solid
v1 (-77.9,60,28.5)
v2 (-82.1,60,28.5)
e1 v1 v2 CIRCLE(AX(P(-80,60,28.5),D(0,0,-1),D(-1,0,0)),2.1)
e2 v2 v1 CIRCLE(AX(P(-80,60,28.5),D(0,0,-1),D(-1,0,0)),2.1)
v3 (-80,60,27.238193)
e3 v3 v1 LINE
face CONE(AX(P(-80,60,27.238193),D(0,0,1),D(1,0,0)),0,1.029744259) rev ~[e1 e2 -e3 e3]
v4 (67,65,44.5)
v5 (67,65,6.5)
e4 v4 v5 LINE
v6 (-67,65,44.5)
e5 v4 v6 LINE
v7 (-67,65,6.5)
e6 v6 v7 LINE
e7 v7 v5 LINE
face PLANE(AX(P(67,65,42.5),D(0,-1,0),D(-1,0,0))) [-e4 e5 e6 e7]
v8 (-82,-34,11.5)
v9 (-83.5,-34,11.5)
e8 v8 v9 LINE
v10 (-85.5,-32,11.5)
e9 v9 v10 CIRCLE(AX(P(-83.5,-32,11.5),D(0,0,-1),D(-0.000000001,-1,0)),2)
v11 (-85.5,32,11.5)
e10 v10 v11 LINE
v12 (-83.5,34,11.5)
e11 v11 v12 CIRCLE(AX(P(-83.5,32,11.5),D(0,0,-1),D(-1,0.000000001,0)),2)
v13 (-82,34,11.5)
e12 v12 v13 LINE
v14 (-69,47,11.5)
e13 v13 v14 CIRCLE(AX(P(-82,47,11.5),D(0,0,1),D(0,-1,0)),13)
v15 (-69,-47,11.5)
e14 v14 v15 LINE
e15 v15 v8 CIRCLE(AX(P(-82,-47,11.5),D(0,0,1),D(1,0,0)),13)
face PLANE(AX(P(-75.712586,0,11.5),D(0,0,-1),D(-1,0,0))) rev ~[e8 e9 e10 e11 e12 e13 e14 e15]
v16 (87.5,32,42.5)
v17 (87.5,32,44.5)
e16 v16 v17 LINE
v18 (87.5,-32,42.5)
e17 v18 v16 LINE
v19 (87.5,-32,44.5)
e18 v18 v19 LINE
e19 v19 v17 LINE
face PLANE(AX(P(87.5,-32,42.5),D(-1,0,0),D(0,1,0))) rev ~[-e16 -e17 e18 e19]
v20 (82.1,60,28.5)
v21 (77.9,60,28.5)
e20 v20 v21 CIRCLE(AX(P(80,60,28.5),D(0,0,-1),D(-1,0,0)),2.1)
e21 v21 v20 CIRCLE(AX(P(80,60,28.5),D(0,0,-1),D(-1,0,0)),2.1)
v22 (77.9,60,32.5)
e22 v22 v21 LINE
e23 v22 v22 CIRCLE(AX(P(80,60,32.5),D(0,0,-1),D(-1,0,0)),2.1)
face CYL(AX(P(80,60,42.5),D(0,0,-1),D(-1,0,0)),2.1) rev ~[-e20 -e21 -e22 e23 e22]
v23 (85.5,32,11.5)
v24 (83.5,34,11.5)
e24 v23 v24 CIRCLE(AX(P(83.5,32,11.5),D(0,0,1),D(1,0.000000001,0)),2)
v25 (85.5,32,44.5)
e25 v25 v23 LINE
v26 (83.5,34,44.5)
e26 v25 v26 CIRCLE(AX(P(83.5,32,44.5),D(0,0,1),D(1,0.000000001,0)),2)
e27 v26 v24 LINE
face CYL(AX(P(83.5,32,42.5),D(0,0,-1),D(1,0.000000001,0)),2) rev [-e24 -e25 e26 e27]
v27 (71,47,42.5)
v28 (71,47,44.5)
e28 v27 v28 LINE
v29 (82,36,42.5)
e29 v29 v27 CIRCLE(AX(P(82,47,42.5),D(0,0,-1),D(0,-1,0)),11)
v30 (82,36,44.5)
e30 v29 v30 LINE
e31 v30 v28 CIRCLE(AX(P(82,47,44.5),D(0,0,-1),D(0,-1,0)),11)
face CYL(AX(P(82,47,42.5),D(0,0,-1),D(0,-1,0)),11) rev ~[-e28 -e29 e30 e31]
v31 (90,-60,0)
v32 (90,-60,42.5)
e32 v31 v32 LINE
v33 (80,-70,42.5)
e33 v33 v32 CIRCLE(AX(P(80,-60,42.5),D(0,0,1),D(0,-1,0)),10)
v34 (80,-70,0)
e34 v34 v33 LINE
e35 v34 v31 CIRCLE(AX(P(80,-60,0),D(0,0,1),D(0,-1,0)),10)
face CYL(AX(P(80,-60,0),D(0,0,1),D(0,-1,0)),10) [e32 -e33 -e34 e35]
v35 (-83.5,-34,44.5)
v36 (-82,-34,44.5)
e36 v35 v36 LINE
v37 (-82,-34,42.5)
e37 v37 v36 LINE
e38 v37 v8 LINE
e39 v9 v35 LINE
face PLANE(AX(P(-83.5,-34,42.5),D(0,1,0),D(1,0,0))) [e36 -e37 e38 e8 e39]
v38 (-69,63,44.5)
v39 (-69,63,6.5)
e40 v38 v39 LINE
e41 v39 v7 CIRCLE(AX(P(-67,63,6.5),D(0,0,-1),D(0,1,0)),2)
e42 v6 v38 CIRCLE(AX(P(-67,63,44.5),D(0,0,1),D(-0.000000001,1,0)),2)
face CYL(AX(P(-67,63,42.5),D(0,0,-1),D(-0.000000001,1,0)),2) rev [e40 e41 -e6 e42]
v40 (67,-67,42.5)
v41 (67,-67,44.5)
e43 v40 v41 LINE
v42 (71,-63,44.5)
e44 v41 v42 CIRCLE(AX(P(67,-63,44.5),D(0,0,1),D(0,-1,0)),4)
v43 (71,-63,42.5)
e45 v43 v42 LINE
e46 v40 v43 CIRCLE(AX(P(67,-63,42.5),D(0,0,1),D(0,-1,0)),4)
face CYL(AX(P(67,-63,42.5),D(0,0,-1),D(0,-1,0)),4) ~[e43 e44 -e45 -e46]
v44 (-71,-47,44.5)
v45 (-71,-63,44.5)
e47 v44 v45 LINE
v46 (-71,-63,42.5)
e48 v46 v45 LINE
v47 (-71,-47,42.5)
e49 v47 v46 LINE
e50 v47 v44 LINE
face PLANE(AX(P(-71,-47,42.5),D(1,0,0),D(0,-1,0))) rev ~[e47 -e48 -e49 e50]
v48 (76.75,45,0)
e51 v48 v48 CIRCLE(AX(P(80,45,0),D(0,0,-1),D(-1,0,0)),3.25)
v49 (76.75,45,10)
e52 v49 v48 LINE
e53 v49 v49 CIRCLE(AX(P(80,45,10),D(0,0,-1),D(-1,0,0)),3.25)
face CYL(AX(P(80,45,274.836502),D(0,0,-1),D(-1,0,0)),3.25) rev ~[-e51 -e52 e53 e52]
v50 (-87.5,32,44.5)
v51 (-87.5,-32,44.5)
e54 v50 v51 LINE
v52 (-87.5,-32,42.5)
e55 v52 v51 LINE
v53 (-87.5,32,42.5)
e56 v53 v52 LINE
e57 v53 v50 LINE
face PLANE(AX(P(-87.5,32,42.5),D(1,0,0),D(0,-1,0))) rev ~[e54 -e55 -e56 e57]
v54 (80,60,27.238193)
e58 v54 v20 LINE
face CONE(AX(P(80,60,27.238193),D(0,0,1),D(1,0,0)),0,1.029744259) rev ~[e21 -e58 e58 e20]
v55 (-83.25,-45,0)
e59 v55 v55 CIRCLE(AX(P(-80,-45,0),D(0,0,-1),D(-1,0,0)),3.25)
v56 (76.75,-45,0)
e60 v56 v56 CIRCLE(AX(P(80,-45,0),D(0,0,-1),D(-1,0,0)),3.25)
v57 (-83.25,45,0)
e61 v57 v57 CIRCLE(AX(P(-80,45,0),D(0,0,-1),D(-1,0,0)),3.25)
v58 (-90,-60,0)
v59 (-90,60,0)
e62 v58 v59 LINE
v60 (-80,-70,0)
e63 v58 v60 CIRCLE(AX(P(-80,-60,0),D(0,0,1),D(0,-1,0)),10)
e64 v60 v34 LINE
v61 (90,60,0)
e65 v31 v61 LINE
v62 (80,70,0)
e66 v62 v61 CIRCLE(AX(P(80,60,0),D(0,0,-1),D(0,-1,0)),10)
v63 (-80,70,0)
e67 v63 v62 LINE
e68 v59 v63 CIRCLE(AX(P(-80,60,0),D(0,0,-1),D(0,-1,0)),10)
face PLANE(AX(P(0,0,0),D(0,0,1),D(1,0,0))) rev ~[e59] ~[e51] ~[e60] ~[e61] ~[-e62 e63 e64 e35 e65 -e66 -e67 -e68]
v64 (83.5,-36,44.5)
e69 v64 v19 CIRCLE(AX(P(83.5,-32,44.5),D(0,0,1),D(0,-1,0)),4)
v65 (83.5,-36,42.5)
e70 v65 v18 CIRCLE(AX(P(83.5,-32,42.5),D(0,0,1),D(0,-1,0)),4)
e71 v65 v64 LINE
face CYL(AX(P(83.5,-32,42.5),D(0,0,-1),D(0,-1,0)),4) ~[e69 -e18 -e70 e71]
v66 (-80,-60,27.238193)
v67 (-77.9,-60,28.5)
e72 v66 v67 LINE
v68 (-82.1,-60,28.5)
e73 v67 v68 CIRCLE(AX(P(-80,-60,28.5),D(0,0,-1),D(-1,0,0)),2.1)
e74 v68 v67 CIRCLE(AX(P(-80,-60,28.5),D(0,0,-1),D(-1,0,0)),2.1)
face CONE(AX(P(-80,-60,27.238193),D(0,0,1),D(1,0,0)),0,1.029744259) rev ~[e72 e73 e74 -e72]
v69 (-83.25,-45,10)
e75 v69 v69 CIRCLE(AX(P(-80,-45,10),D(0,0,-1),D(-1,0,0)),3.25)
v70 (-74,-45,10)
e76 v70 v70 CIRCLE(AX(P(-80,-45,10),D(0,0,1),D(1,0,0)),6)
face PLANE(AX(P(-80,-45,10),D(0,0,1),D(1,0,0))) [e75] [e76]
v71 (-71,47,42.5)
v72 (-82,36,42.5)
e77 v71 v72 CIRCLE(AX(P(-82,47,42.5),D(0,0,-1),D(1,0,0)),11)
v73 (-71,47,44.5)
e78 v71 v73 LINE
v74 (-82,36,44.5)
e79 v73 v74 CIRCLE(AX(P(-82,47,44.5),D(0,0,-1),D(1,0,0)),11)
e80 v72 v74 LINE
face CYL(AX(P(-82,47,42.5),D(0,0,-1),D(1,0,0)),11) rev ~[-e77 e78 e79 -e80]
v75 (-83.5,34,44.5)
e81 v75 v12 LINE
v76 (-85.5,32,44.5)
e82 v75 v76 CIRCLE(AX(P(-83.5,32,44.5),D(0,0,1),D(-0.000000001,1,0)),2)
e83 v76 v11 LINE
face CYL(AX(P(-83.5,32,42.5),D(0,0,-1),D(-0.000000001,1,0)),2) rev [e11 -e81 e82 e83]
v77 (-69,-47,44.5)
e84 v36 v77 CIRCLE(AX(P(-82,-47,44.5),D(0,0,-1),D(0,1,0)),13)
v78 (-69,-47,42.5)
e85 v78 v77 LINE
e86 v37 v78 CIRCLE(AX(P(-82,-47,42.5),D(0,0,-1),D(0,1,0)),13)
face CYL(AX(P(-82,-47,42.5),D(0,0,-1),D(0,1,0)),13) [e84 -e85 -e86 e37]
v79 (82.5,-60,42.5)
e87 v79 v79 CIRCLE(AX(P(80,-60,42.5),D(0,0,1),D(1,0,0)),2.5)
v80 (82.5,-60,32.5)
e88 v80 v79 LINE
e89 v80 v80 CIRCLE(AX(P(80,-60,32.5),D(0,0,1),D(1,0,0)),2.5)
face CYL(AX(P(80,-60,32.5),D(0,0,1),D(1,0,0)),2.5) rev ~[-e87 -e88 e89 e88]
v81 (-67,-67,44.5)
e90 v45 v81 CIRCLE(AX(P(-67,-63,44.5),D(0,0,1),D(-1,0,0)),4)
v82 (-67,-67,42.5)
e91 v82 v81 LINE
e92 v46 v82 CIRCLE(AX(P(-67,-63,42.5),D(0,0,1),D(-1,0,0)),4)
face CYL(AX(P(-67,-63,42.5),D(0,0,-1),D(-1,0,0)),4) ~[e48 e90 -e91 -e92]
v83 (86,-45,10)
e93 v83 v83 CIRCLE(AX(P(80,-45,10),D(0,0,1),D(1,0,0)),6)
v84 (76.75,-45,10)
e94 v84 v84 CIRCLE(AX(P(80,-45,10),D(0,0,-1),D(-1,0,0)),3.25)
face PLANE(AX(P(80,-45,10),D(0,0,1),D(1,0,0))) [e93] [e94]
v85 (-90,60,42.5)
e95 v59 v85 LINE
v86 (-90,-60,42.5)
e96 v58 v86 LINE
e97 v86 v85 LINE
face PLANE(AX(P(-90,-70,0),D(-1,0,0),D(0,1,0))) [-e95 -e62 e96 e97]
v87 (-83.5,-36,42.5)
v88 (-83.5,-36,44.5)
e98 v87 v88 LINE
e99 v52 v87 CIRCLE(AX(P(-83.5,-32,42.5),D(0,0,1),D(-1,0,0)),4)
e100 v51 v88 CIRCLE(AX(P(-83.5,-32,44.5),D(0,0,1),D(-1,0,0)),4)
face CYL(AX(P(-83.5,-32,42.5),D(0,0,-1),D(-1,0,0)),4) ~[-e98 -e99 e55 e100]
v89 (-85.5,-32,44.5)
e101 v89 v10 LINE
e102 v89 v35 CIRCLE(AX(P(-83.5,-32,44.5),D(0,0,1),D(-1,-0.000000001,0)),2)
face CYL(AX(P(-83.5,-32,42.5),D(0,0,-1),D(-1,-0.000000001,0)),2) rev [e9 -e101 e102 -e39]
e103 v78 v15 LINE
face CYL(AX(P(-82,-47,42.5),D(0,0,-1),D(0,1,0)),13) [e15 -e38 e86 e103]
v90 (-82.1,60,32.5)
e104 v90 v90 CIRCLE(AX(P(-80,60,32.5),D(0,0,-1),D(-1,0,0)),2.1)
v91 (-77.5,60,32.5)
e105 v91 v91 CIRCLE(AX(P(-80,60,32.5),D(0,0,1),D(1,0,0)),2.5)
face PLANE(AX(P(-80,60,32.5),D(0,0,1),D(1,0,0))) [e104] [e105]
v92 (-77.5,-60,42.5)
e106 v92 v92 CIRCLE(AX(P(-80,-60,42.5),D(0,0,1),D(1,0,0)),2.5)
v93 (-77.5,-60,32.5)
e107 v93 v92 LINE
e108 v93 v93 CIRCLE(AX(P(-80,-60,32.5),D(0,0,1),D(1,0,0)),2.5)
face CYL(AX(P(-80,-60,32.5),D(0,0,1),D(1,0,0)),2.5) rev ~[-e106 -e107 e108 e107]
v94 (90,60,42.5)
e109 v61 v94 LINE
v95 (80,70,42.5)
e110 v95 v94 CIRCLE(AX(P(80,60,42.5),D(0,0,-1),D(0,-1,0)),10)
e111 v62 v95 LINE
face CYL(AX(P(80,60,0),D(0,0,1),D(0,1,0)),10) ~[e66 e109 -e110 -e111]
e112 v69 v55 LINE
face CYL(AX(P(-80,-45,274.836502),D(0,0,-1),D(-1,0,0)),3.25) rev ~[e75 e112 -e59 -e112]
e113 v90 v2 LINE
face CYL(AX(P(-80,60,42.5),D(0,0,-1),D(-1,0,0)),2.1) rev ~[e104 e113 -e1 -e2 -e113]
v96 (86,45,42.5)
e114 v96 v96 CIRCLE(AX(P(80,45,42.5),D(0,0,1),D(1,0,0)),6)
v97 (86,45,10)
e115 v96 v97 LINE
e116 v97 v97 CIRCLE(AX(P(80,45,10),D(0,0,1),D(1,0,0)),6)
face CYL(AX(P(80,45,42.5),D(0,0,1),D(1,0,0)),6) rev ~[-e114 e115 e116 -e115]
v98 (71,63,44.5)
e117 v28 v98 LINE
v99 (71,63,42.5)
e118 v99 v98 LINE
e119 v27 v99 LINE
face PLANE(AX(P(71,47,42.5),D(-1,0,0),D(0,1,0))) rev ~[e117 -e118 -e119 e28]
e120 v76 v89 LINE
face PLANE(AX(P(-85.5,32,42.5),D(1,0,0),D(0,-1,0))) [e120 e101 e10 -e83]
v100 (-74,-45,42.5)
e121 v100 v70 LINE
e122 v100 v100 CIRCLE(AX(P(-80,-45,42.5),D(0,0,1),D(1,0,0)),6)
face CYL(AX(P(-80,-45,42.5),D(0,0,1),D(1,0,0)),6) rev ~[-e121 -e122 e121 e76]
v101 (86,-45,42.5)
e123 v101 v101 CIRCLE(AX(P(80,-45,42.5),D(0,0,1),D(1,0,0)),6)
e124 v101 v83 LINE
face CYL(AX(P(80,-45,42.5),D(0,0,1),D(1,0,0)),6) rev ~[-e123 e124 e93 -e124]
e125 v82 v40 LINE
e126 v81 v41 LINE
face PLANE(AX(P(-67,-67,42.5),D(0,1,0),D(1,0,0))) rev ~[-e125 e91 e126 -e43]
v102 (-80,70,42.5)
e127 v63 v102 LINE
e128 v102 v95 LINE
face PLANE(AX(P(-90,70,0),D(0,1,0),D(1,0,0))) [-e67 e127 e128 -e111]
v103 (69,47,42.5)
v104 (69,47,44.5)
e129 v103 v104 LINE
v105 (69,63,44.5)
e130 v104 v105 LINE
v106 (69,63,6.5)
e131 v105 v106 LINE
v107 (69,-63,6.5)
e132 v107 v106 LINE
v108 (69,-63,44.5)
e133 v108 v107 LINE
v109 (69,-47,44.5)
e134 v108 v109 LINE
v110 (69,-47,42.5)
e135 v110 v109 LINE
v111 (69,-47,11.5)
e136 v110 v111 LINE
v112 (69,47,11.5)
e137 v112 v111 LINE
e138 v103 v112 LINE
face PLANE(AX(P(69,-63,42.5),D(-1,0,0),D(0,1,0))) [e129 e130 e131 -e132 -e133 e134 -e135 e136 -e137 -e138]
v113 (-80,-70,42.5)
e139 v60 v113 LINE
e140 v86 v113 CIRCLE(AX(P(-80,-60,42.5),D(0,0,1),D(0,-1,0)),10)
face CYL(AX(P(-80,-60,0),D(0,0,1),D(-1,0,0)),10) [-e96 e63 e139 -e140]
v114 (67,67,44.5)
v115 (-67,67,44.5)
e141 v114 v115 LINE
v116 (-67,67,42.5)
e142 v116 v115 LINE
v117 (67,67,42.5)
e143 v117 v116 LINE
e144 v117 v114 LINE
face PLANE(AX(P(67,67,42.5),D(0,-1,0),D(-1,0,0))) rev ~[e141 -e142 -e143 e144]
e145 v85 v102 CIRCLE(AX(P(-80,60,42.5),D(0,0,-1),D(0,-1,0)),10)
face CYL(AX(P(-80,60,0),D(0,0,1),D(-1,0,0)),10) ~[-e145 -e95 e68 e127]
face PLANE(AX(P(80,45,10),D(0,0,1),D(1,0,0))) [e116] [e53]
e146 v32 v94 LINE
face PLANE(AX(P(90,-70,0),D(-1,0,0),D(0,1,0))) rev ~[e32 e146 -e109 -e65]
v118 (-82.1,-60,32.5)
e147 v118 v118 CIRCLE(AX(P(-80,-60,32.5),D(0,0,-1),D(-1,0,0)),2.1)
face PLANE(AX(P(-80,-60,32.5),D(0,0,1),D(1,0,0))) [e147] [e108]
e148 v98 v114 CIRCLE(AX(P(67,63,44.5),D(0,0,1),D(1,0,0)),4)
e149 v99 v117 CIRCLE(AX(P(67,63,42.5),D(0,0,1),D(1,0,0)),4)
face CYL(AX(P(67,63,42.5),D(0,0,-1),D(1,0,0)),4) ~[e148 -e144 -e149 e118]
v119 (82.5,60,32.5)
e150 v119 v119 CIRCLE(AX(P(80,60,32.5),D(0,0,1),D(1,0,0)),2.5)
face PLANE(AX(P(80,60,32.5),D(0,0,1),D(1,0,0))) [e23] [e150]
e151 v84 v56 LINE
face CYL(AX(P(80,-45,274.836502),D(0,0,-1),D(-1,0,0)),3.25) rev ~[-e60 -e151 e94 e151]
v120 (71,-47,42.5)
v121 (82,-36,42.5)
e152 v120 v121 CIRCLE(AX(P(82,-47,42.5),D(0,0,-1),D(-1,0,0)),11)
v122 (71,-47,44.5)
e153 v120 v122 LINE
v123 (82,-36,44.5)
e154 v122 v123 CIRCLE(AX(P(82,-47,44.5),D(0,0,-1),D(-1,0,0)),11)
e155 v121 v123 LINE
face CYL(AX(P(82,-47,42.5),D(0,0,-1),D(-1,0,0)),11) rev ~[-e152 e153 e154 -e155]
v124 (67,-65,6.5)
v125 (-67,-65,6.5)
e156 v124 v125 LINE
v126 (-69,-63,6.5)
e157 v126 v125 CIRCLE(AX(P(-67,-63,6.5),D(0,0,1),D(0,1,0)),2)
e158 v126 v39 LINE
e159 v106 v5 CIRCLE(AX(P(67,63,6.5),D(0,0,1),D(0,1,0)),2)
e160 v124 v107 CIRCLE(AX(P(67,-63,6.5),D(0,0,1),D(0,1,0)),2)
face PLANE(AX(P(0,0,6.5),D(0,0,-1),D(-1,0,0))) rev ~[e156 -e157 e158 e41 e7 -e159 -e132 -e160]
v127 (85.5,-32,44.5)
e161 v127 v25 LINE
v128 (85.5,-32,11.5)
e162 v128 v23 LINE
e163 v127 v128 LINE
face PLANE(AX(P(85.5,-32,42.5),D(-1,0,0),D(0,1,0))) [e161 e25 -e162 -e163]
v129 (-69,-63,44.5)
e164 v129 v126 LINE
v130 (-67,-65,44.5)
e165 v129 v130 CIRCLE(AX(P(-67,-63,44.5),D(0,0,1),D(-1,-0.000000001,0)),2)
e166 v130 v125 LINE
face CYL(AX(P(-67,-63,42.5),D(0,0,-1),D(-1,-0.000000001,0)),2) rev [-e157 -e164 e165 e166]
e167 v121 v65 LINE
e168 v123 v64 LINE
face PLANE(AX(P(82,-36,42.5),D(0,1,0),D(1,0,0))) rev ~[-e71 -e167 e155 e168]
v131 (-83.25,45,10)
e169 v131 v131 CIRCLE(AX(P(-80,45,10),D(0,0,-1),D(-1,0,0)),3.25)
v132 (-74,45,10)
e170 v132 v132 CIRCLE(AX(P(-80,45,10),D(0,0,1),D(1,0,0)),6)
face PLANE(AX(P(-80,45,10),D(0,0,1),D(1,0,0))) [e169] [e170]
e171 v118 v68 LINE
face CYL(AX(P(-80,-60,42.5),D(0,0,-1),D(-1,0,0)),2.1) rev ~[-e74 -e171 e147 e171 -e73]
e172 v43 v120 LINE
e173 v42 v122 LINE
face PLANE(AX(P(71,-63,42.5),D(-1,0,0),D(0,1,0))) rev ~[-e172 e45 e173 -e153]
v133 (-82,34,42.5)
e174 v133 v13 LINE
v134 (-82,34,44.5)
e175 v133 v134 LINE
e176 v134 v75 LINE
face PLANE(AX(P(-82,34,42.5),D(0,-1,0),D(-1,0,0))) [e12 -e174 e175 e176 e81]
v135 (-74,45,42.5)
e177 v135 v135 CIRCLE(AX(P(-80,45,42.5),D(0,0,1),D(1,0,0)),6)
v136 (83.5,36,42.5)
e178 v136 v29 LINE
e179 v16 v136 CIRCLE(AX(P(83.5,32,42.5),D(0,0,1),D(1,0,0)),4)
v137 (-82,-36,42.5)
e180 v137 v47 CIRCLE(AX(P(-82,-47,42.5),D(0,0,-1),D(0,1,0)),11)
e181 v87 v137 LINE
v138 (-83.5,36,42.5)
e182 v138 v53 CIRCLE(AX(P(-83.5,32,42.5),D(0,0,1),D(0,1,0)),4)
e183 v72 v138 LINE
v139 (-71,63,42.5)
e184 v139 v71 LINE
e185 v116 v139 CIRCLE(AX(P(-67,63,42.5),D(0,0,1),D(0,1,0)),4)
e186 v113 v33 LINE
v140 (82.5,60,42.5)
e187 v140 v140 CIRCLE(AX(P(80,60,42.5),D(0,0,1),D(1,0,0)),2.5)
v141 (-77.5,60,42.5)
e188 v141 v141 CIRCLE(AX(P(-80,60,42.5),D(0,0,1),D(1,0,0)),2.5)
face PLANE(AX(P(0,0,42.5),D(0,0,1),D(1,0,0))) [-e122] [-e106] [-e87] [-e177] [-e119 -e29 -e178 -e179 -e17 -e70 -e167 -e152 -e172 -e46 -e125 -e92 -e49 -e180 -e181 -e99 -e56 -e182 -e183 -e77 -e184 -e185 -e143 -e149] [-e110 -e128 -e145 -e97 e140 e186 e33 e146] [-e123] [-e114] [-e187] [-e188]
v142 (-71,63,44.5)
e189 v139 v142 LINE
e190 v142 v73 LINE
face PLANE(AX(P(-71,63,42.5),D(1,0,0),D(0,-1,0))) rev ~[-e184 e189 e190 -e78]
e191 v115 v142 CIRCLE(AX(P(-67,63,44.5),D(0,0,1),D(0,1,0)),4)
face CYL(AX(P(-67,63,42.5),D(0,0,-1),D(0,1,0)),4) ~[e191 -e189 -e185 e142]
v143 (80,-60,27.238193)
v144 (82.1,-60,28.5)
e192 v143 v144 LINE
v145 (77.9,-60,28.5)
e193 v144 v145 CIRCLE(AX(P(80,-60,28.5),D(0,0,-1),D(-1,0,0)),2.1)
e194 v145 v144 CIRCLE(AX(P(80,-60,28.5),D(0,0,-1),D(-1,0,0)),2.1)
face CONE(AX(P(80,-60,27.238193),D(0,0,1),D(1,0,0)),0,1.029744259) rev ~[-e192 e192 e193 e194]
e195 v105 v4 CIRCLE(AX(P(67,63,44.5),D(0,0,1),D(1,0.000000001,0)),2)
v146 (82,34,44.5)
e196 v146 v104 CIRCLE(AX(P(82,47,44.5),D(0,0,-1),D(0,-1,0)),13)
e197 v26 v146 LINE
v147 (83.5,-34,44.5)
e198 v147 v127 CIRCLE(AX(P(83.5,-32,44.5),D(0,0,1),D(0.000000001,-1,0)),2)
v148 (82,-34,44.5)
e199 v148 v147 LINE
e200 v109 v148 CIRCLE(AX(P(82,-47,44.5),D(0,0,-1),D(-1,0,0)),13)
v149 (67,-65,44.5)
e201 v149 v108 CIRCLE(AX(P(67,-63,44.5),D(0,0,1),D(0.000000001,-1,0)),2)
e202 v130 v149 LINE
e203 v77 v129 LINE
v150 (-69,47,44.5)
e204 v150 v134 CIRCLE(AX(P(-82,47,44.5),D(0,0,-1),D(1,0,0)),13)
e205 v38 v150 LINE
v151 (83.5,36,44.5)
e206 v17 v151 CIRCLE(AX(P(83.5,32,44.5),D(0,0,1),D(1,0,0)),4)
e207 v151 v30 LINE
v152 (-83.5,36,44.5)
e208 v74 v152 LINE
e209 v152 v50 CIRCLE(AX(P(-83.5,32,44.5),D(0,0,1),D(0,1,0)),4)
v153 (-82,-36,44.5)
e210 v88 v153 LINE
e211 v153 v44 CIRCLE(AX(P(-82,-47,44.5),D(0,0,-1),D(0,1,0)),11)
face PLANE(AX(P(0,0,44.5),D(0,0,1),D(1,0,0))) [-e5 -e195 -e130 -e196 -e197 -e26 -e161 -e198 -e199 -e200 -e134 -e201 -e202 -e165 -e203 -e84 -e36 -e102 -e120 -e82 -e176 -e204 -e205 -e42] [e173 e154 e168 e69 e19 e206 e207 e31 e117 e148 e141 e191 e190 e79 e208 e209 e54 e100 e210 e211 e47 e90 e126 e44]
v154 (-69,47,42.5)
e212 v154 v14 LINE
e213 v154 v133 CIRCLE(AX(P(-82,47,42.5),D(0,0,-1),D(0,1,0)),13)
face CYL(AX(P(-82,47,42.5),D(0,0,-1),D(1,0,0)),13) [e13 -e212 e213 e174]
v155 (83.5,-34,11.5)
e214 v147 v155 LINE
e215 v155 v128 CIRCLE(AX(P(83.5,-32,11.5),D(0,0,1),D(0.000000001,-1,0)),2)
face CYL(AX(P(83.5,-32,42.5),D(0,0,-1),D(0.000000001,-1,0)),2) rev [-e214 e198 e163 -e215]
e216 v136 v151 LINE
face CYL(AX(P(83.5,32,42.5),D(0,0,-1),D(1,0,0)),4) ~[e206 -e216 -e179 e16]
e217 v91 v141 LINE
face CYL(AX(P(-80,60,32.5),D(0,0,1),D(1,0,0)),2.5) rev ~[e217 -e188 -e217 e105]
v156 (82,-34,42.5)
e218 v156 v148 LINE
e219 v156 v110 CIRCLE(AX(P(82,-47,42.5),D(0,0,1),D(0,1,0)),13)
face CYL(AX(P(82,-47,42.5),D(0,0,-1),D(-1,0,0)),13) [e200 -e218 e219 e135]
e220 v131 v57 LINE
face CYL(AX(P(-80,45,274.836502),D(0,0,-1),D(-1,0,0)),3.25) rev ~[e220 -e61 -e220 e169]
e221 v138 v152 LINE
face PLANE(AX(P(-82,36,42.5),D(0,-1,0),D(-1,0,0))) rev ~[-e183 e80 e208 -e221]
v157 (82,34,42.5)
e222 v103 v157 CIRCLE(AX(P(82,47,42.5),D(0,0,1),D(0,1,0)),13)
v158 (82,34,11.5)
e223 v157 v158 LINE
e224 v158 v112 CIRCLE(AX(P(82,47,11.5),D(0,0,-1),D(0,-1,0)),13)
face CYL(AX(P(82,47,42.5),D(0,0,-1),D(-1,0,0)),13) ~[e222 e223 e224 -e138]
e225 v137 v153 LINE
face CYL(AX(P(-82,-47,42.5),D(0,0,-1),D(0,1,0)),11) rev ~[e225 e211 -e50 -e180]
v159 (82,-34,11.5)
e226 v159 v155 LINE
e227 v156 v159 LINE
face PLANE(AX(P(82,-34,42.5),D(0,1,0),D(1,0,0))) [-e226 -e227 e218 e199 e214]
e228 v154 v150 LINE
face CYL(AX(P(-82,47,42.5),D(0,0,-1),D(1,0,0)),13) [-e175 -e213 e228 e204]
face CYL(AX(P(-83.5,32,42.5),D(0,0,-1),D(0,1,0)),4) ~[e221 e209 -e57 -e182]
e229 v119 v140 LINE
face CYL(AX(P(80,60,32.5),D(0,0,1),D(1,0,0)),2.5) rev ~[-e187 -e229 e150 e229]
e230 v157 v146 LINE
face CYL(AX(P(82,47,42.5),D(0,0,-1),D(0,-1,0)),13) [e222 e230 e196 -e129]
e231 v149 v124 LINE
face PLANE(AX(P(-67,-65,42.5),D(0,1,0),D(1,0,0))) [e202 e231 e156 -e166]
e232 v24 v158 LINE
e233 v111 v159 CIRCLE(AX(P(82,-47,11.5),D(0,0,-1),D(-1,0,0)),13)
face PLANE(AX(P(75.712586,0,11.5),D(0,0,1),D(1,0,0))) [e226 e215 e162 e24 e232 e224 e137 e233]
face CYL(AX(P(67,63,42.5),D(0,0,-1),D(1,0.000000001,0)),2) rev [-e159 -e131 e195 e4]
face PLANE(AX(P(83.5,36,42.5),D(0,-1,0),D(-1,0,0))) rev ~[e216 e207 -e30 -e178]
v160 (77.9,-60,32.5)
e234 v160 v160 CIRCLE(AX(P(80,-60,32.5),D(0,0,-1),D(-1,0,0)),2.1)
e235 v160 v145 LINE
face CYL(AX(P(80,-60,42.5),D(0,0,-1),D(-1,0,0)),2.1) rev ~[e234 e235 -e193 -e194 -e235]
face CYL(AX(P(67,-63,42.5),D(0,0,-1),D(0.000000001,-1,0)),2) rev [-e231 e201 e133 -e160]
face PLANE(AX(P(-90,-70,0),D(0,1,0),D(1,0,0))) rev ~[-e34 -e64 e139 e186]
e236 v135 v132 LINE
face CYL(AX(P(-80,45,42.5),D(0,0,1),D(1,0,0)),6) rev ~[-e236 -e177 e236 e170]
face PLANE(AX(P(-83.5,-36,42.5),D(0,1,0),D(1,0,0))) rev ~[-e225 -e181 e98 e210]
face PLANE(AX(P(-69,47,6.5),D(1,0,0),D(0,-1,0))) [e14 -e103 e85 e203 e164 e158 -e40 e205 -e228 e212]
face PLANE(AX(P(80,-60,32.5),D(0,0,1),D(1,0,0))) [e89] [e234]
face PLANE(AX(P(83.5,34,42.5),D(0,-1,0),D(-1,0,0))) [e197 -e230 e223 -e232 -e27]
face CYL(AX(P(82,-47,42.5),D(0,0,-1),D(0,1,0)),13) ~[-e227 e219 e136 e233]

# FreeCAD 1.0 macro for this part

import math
import FreeCAD as App
import Part
import Sketcher


def edges_at(feature, points):
    """Names of the edges that pass closest to the given points."""
    edges = feature.Shape.Edges
    near = lambda p: min(range(len(edges)), key=lambda i: edges[i].distToShape(Part.Vertex(*p))[0])
    return sorted({f"Edge{near(p) + 1}" for p in points})

doc = App.newDocument("Part")
body = doc.addObject("PartDesign::Body", "Body")

sketch1 = body.newObject("Sketcher::SketchObject", "Sketch")
sketch1.AttachmentSupport = (doc.getObject("XY_Plane"), [""])
sketch1.MapMode = "FlatFace"
sketch1.addGeometry(Part.LineSegment(App.Vector(-90, 70, 0), App.Vector(-90, -70, 0)), False)
sketch1.addGeometry(Part.LineSegment(App.Vector(-90, -70, 0), App.Vector(90, -70, 0)), False)
sketch1.addGeometry(Part.LineSegment(App.Vector(90, -70, 0), App.Vector(90, 70, 0)), False)
sketch1.addGeometry(Part.LineSegment(App.Vector(90, 70, 0), App.Vector(-90, 70, 0)), False)
sketch1.addConstraint(Sketcher.Constraint("Coincident", 0, 2, 1, 1))
sketch1.addConstraint(Sketcher.Constraint("Coincident", 1, 2, 2, 1))
sketch1.addConstraint(Sketcher.Constraint("Coincident", 2, 2, 3, 1))
sketch1.addConstraint(Sketcher.Constraint("Coincident", 3, 2, 0, 1))
sketch1.addConstraint(Sketcher.Constraint("Vertical", 0))
sketch1.addConstraint(Sketcher.Constraint("Horizontal", 1))
sketch1.addConstraint(Sketcher.Constraint("Vertical", 2))
sketch1.addConstraint(Sketcher.Constraint("Horizontal", 3))
sketch1.addConstraint(Sketcher.Constraint("Symmetric", 0, 2, 2, 2, -1, 1))
sketch1.addConstraint(Sketcher.Constraint("DistanceX", 1, 1, 1, 2, 180.0))
sketch1.addConstraint(Sketcher.Constraint("DistanceY", 0, 2, 0, 1, 140.0))
pad1 = body.newObject("PartDesign::Pad", "Pad")
pad1.Profile = sketch1
pad1.Length = 42.5

sketch2 = body.newObject("Sketcher::SketchObject", "Sketch001")
sketch2.AttachmentSupport = (doc.getObject("XY_Plane"), [""])
sketch2.MapMode = "FlatFace"
sketch2.AttachmentOffset = App.Placement(App.Vector(0, 0, 42.5), App.Rotation())
sketch2.addGeometry(Part.LineSegment(App.Vector(69, 65, 0), App.Vector(-69, 65, 0)), False)
sketch2.addGeometry(Part.LineSegment(App.Vector(-69, 65, 0), App.Vector(-69, 34, 0)), False)
sketch2.addGeometry(Part.LineSegment(App.Vector(-69, 34, 0), App.Vector(-86, 34, 0)), False)
sketch2.addGeometry(Part.LineSegment(App.Vector(-86, 34, 0), App.Vector(-86, -34, 0)), False)
sketch2.addGeometry(Part.LineSegment(App.Vector(-86, -34, 0), App.Vector(-69, -34, 0)), False)
sketch2.addGeometry(Part.LineSegment(App.Vector(-69, -34, 0), App.Vector(-69, -65, 0)), False)
sketch2.addGeometry(Part.LineSegment(App.Vector(-69, -65, 0), App.Vector(69, -65, 0)), False)
sketch2.addGeometry(Part.LineSegment(App.Vector(69, -65, 0), App.Vector(69, -34, 0)), False)
sketch2.addGeometry(Part.LineSegment(App.Vector(69, -34, 0), App.Vector(86, -34, 0)), False)
sketch2.addGeometry(Part.LineSegment(App.Vector(86, -34, 0), App.Vector(86, 34, 0)), False)
sketch2.addGeometry(Part.LineSegment(App.Vector(86, 34, 0), App.Vector(69, 34, 0)), False)
sketch2.addGeometry(Part.LineSegment(App.Vector(69, 34, 0), App.Vector(69, 65, 0)), False)
sketch2.addConstraint(Sketcher.Constraint("Coincident", 0, 2, 1, 1))
sketch2.addConstraint(Sketcher.Constraint("Coincident", 1, 2, 2, 1))
sketch2.addConstraint(Sketcher.Constraint("Coincident", 2, 2, 3, 1))
sketch2.addConstraint(Sketcher.Constraint("Coincident", 3, 2, 4, 1))
sketch2.addConstraint(Sketcher.Constraint("Coincident", 4, 2, 5, 1))
sketch2.addConstraint(Sketcher.Constraint("Coincident", 5, 2, 6, 1))
sketch2.addConstraint(Sketcher.Constraint("Coincident", 6, 2, 7, 1))
sketch2.addConstraint(Sketcher.Constraint("Coincident", 7, 2, 8, 1))
sketch2.addConstraint(Sketcher.Constraint("Coincident", 8, 2, 9, 1))
sketch2.addConstraint(Sketcher.Constraint("Coincident", 9, 2, 10, 1))
sketch2.addConstraint(Sketcher.Constraint("Coincident", 10, 2, 11, 1))
sketch2.addConstraint(Sketcher.Constraint("Coincident", 11, 2, 0, 1))
sketch2.addConstraint(Sketcher.Constraint("Horizontal", 0))
sketch2.addConstraint(Sketcher.Constraint("Vertical", 1))
sketch2.addConstraint(Sketcher.Constraint("Horizontal", 2))
sketch2.addConstraint(Sketcher.Constraint("Vertical", 3))
sketch2.addConstraint(Sketcher.Constraint("Horizontal", 4))
sketch2.addConstraint(Sketcher.Constraint("Vertical", 5))
sketch2.addConstraint(Sketcher.Constraint("Horizontal", 6))
sketch2.addConstraint(Sketcher.Constraint("Vertical", 7))
sketch2.addConstraint(Sketcher.Constraint("Horizontal", 8))
sketch2.addConstraint(Sketcher.Constraint("Vertical", 9))
sketch2.addConstraint(Sketcher.Constraint("Horizontal", 10))
sketch2.addConstraint(Sketcher.Constraint("Vertical", 11))
sketch2.addConstraint(Sketcher.Constraint("Symmetric", 0, 2, 6, 2, -1, 1))
sketch2.addConstraint(Sketcher.Constraint("Symmetric", 2, 2, 8, 2, -1, 1))
sketch2.addConstraint(Sketcher.Constraint("Symmetric", 4, 2, 10, 2, -1, 1))
sketch2.addConstraint(Sketcher.Constraint("Symmetric", 4, 2, 7, 2, -2))
sketch2.addConstraint(Sketcher.Constraint("DistanceX", 0, 2, 0, 1, 138.0))
sketch2.addConstraint(Sketcher.Constraint("DistanceY", 1, 2, 1, 1, 31.0))
sketch2.addConstraint(Sketcher.Constraint("DistanceY", 3, 2, 3, 1, 68.0))
sketch2.addConstraint(Sketcher.Constraint("DistanceX", 2, 2, 2, 1, 16.5))
pocket1 = body.newObject("PartDesign::Pocket", "Pocket")
pocket1.Profile = sketch2
pocket1.Length = 36
doc.recompute()

fillet = body.newObject("PartDesign::Fillet", "Fillet")
fillet.Base = (pocket1, edges_at(pocket1, [
    (-69, 65, 24.5),
    (69, 65, 24.5),
    (85.5, 34, 24.5),
    (85.5, -34, 24.5),
    (69, -65, 24.5),
    (-69, -65, 24.5),
    (-85.5, -34, 24.5),
    (-85.5, 34, 24.5),
]))
fillet.Radius = 2
doc.recompute()

fillet2 = body.newObject("PartDesign::Fillet", "Fillet001")
fillet2.Base = (fillet, edges_at(fillet, [
    (-69, 34, 24.5),
    (69, 34, 24.5),
    (69, -34, 24.5),
    (-69, -34, 24.5),
]))
fillet2.Radius = 13
doc.recompute()

fillet3 = body.newObject("PartDesign::Fillet", "Fillet002")
fillet3.Base = (fillet2, edges_at(fillet2, [
    (-90, 70, 21.25),
    (90, 70, 21.25),
    (90, -70, 21.25),
    (-90, -70, 21.25),
]))
fillet3.Radius = 10

sketch3 = body.newObject("Sketcher::SketchObject", "Sketch002")
sketch3.AttachmentSupport = (doc.getObject("XY_Plane"), [""])
sketch3.MapMode = "FlatFace"
sketch3.AttachmentOffset = App.Placement(App.Vector(0, 0, 42.5), App.Rotation())
sketch3.addGeometry(Part.LineSegment(App.Vector(-71, 63, 0), App.Vector(-71, 47, 0)), False)
sketch3.addGeometry(Part.ArcOfCircle(Part.Circle(App.Vector(-82, 47, 0), App.Vector(0, 0, 1), 11), math.radians(-90), math.radians(0)), False)
sketch3.addGeometry(Part.LineSegment(App.Vector(-82, 36, 0), App.Vector(-83.5, 36, 0)), False)
sketch3.addGeometry(Part.ArcOfCircle(Part.Circle(App.Vector(-83.5, 32, 0), App.Vector(0, 0, 1), 4), math.radians(90), math.radians(180)), False)
sketch3.addGeometry(Part.LineSegment(App.Vector(-87.5, 32, 0), App.Vector(-87.5, -32, 0)), False)
sketch3.addGeometry(Part.ArcOfCircle(Part.Circle(App.Vector(-83.5, -32, 0), App.Vector(0, 0, 1), 4), math.radians(180), math.radians(270)), False)
sketch3.addGeometry(Part.LineSegment(App.Vector(-83.5, -36, 0), App.Vector(-82, -36, 0)), False)
sketch3.addGeometry(Part.ArcOfCircle(Part.Circle(App.Vector(-82, -47, 0), App.Vector(0, 0, 1), 11), math.radians(0), math.radians(90)), False)
sketch3.addGeometry(Part.LineSegment(App.Vector(-71, -47, 0), App.Vector(-71, -63, 0)), False)
sketch3.addGeometry(Part.ArcOfCircle(Part.Circle(App.Vector(-67, -63, 0), App.Vector(0, 0, 1), 4), math.radians(180), math.radians(270)), False)
sketch3.addGeometry(Part.LineSegment(App.Vector(-67, -67, 0), App.Vector(67, -67, 0)), False)
sketch3.addGeometry(Part.ArcOfCircle(Part.Circle(App.Vector(67, -63, 0), App.Vector(0, 0, 1), 4), math.radians(-90), math.radians(0)), False)
sketch3.addGeometry(Part.LineSegment(App.Vector(71, -63, 0), App.Vector(71, -47, 0)), False)
sketch3.addGeometry(Part.ArcOfCircle(Part.Circle(App.Vector(82, -47, 0), App.Vector(0, 0, 1), 11), math.radians(90), math.radians(180)), False)
sketch3.addGeometry(Part.LineSegment(App.Vector(82, -36, 0), App.Vector(83.5, -36, 0)), False)
sketch3.addGeometry(Part.ArcOfCircle(Part.Circle(App.Vector(83.5, -32, 0), App.Vector(0, 0, 1), 4), math.radians(-90), math.radians(0)), False)
sketch3.addGeometry(Part.LineSegment(App.Vector(87.5, -32, 0), App.Vector(87.5, 32, 0)), False)
sketch3.addGeometry(Part.ArcOfCircle(Part.Circle(App.Vector(83.5, 32, 0), App.Vector(0, 0, 1), 4), math.radians(0), math.radians(90)), False)
sketch3.addGeometry(Part.LineSegment(App.Vector(83.5, 36, 0), App.Vector(82, 36, 0)), False)
sketch3.addGeometry(Part.ArcOfCircle(Part.Circle(App.Vector(82, 47, 0), App.Vector(0, 0, 1), 11), math.radians(180), math.radians(270)), False)
sketch3.addGeometry(Part.LineSegment(App.Vector(71, 47, 0), App.Vector(71, 63, 0)), False)
sketch3.addGeometry(Part.ArcOfCircle(Part.Circle(App.Vector(67, 63, 0), App.Vector(0, 0, 1), 4), math.radians(0), math.radians(90)), False)
sketch3.addGeometry(Part.LineSegment(App.Vector(67, 67, 0), App.Vector(-67, 67, 0)), False)
sketch3.addGeometry(Part.ArcOfCircle(Part.Circle(App.Vector(-67, 63, 0), App.Vector(0, 0, 1), 4), math.radians(90), math.radians(180)), False)
sketch3.addGeometry(Part.LineSegment(App.Vector(-82, -34, 0), App.Vector(-83.5, -34, 0)), False)
sketch3.addGeometry(Part.ArcOfCircle(Part.Circle(App.Vector(-83.5, -32, 0), App.Vector(0, 0, 1), 2), math.radians(-180), math.radians(-90)), False)
sketch3.addGeometry(Part.LineSegment(App.Vector(-85.5, -32, 0), App.Vector(-85.5, 32, 0)), False)
sketch3.addGeometry(Part.ArcOfCircle(Part.Circle(App.Vector(-83.5, 32, 0), App.Vector(0, 0, 1), 2), math.radians(90), math.radians(180)), False)
sketch3.addGeometry(Part.LineSegment(App.Vector(-83.5, 34, 0), App.Vector(-82, 34, 0)), False)
sketch3.addGeometry(Part.ArcOfCircle(Part.Circle(App.Vector(-82, 47, 0), App.Vector(0, 0, 1), 13), math.radians(-90), math.radians(0)), False)
sketch3.addGeometry(Part.LineSegment(App.Vector(-69, 47, 0), App.Vector(-69, 63, 0)), False)
sketch3.addGeometry(Part.ArcOfCircle(Part.Circle(App.Vector(-67, 63, 0), App.Vector(0, 0, 1), 2), math.radians(90), math.radians(180)), False)
sketch3.addGeometry(Part.LineSegment(App.Vector(-67, 65, 0), App.Vector(67, 65, 0)), False)
sketch3.addGeometry(Part.ArcOfCircle(Part.Circle(App.Vector(67, 63, 0), App.Vector(0, 0, 1), 2), math.radians(0), math.radians(90)), False)
sketch3.addGeometry(Part.LineSegment(App.Vector(69, 63, 0), App.Vector(69, 47, 0)), False)
sketch3.addGeometry(Part.ArcOfCircle(Part.Circle(App.Vector(82, 47, 0), App.Vector(0, 0, 1), 13), math.radians(-180), math.radians(-90)), False)
sketch3.addGeometry(Part.LineSegment(App.Vector(82, 34, 0), App.Vector(83.5, 34, 0)), False)
sketch3.addGeometry(Part.ArcOfCircle(Part.Circle(App.Vector(83.5, 32, 0), App.Vector(0, 0, 1), 2), math.radians(0), math.radians(90)), False)
sketch3.addGeometry(Part.LineSegment(App.Vector(85.5, 32, 0), App.Vector(85.5, -32, 0)), False)
sketch3.addGeometry(Part.ArcOfCircle(Part.Circle(App.Vector(83.5, -32, 0), App.Vector(0, 0, 1), 2), math.radians(-90), math.radians(0)), False)
sketch3.addGeometry(Part.LineSegment(App.Vector(83.5, -34, 0), App.Vector(82, -34, 0)), False)
sketch3.addGeometry(Part.ArcOfCircle(Part.Circle(App.Vector(82, -47, 0), App.Vector(0, 0, 1), 13), math.radians(90), math.radians(180)), False)
sketch3.addGeometry(Part.LineSegment(App.Vector(69, -47, 0), App.Vector(69, -63, 0)), False)
sketch3.addGeometry(Part.ArcOfCircle(Part.Circle(App.Vector(67, -63, 0), App.Vector(0, 0, 1), 2), math.radians(-90), math.radians(0)), False)
sketch3.addGeometry(Part.LineSegment(App.Vector(67, -65, 0), App.Vector(-67, -65, 0)), False)
sketch3.addGeometry(Part.ArcOfCircle(Part.Circle(App.Vector(-67, -63, 0), App.Vector(0, 0, 1), 2), math.radians(-180), math.radians(-90)), False)
sketch3.addGeometry(Part.LineSegment(App.Vector(-69, -63, 0), App.Vector(-69, -47, 0)), False)
sketch3.addGeometry(Part.ArcOfCircle(Part.Circle(App.Vector(-82, -47, 0), App.Vector(0, 0, 1), 13), math.radians(0), math.radians(90)), False)
sketch3.addConstraint(Sketcher.Constraint("Tangent", 0, 2, 1, 2))
sketch3.addConstraint(Sketcher.Constraint("Tangent", 1, 1, 2, 1))
sketch3.addConstraint(Sketcher.Constraint("Tangent", 2, 2, 3, 1))
sketch3.addConstraint(Sketcher.Constraint("Tangent", 3, 2, 4, 1))
sketch3.addConstraint(Sketcher.Constraint("Tangent", 4, 2, 5, 1))
sketch3.addConstraint(Sketcher.Constraint("Tangent", 5, 2, 6, 1))
sketch3.addConstraint(Sketcher.Constraint("Tangent", 6, 2, 7, 2))
sketch3.addConstraint(Sketcher.Constraint("Tangent", 7, 1, 8, 1))
sketch3.addConstraint(Sketcher.Constraint("Tangent", 8, 2, 9, 1))
sketch3.addConstraint(Sketcher.Constraint("Tangent", 9, 2, 10, 1))
sketch3.addConstraint(Sketcher.Constraint("Tangent", 10, 2, 11, 1))
sketch3.addConstraint(Sketcher.Constraint("Tangent", 11, 2, 12, 1))
sketch3.addConstraint(Sketcher.Constraint("Tangent", 12, 2, 13, 2))
sketch3.addConstraint(Sketcher.Constraint("Tangent", 13, 1, 14, 1))
sketch3.addConstraint(Sketcher.Constraint("Tangent", 14, 2, 15, 1))
sketch3.addConstraint(Sketcher.Constraint("Tangent", 15, 2, 16, 1))
sketch3.addConstraint(Sketcher.Constraint("Tangent", 16, 2, 17, 1))
sketch3.addConstraint(Sketcher.Constraint("Tangent", 17, 2, 18, 1))
sketch3.addConstraint(Sketcher.Constraint("Tangent", 18, 2, 19, 2))
sketch3.addConstraint(Sketcher.Constraint("Tangent", 19, 1, 20, 1))
sketch3.addConstraint(Sketcher.Constraint("Tangent", 20, 2, 21, 1))
sketch3.addConstraint(Sketcher.Constraint("Tangent", 21, 2, 22, 1))
sketch3.addConstraint(Sketcher.Constraint("Tangent", 22, 2, 23, 1))
sketch3.addConstraint(Sketcher.Constraint("Tangent", 23, 2, 0, 1))
sketch3.addConstraint(Sketcher.Constraint("Tangent", 24, 2, 25, 2))
sketch3.addConstraint(Sketcher.Constraint("Tangent", 25, 1, 26, 1))
sketch3.addConstraint(Sketcher.Constraint("Tangent", 26, 2, 27, 2))
sketch3.addConstraint(Sketcher.Constraint("Tangent", 27, 1, 28, 1))
sketch3.addConstraint(Sketcher.Constraint("Tangent", 28, 2, 29, 1))
sketch3.addConstraint(Sketcher.Constraint("Tangent", 29, 2, 30, 1))
sketch3.addConstraint(Sketcher.Constraint("Tangent", 30, 2, 31, 2))
sketch3.addConstraint(Sketcher.Constraint("Tangent", 31, 1, 32, 1))
sketch3.addConstraint(Sketcher.Constraint("Tangent", 32, 2, 33, 2))
sketch3.addConstraint(Sketcher.Constraint("Tangent", 33, 1, 34, 1))
sketch3.addConstraint(Sketcher.Constraint("Tangent", 34, 2, 35, 1))
sketch3.addConstraint(Sketcher.Constraint("Tangent", 35, 2, 36, 1))
sketch3.addConstraint(Sketcher.Constraint("Tangent", 36, 2, 37, 2))
sketch3.addConstraint(Sketcher.Constraint("Tangent", 37, 1, 38, 1))
sketch3.addConstraint(Sketcher.Constraint("Tangent", 38, 2, 39, 2))
sketch3.addConstraint(Sketcher.Constraint("Tangent", 39, 1, 40, 1))
sketch3.addConstraint(Sketcher.Constraint("Tangent", 40, 2, 41, 1))
sketch3.addConstraint(Sketcher.Constraint("Tangent", 41, 2, 42, 1))
sketch3.addConstraint(Sketcher.Constraint("Tangent", 42, 2, 43, 2))
sketch3.addConstraint(Sketcher.Constraint("Tangent", 43, 1, 44, 1))
sketch3.addConstraint(Sketcher.Constraint("Tangent", 44, 2, 45, 2))
sketch3.addConstraint(Sketcher.Constraint("Tangent", 45, 1, 46, 1))
sketch3.addConstraint(Sketcher.Constraint("Tangent", 46, 2, 47, 1))
sketch3.addConstraint(Sketcher.Constraint("Tangent", 47, 2, 24, 1))
sketch3.addConstraint(Sketcher.Constraint("Vertical", 0))
sketch3.addConstraint(Sketcher.Constraint("Horizontal", 2))
sketch3.addConstraint(Sketcher.Constraint("Vertical", 4))
sketch3.addConstraint(Sketcher.Constraint("Horizontal", 6))
sketch3.addConstraint(Sketcher.Constraint("Vertical", 8))
sketch3.addConstraint(Sketcher.Constraint("Horizontal", 10))
sketch3.addConstraint(Sketcher.Constraint("Vertical", 12))
sketch3.addConstraint(Sketcher.Constraint("Horizontal", 14))
sketch3.addConstraint(Sketcher.Constraint("Vertical", 16))
sketch3.addConstraint(Sketcher.Constraint("Horizontal", 18))
sketch3.addConstraint(Sketcher.Constraint("Vertical", 20))
sketch3.addConstraint(Sketcher.Constraint("Horizontal", 22))
sketch3.addConstraint(Sketcher.Constraint("Horizontal", 24))
sketch3.addConstraint(Sketcher.Constraint("Vertical", 26))
sketch3.addConstraint(Sketcher.Constraint("Horizontal", 28))
sketch3.addConstraint(Sketcher.Constraint("Vertical", 30))
sketch3.addConstraint(Sketcher.Constraint("Horizontal", 32))
sketch3.addConstraint(Sketcher.Constraint("Vertical", 34))
sketch3.addConstraint(Sketcher.Constraint("Horizontal", 36))
sketch3.addConstraint(Sketcher.Constraint("Vertical", 38))
sketch3.addConstraint(Sketcher.Constraint("Horizontal", 40))
sketch3.addConstraint(Sketcher.Constraint("Vertical", 42))
sketch3.addConstraint(Sketcher.Constraint("Horizontal", 44))
sketch3.addConstraint(Sketcher.Constraint("Vertical", 46))
sketch3.addConstraint(Sketcher.Constraint("Coincident", 25, 3, 5, 3))
sketch3.addConstraint(Sketcher.Constraint("Coincident", 27, 3, 3, 3))
sketch3.addConstraint(Sketcher.Constraint("Coincident", 29, 3, 1, 3))
sketch3.addConstraint(Sketcher.Constraint("Coincident", 31, 3, 23, 3))
sketch3.addConstraint(Sketcher.Constraint("Coincident", 33, 3, 21, 3))
sketch3.addConstraint(Sketcher.Constraint("Coincident", 35, 3, 19, 3))
sketch3.addConstraint(Sketcher.Constraint("Coincident", 37, 3, 17, 3))
sketch3.addConstraint(Sketcher.Constraint("Coincident", 39, 3, 15, 3))
sketch3.addConstraint(Sketcher.Constraint("Coincident", 41, 3, 13, 3))
sketch3.addConstraint(Sketcher.Constraint("Coincident", 43, 3, 11, 3))
sketch3.addConstraint(Sketcher.Constraint("Coincident", 45, 3, 9, 3))
sketch3.addConstraint(Sketcher.Constraint("Equal", 3, 5))
sketch3.addConstraint(Sketcher.Constraint("Equal", 1, 7))
sketch3.addConstraint(Sketcher.Constraint("Equal", 5, 9))
sketch3.addConstraint(Sketcher.Constraint("Equal", 9, 11))
sketch3.addConstraint(Sketcher.Constraint("Equal", 7, 13))
sketch3.addConstraint(Sketcher.Constraint("Equal", 11, 15))
sketch3.addConstraint(Sketcher.Constraint("Equal", 15, 17))
sketch3.addConstraint(Sketcher.Constraint("Equal", 13, 19))
sketch3.addConstraint(Sketcher.Constraint("Equal", 17, 21))
sketch3.addConstraint(Sketcher.Constraint("Equal", 21, 23))
sketch3.addConstraint(Sketcher.Constraint("Equal", 41, 47))
sketch3.addConstraint(Sketcher.Constraint("Symmetric", 1, 3, 13, 3, -1, 1))
sketch3.addConstraint(Sketcher.Constraint("Symmetric", 5, 3, 17, 3, -1, 1))
sketch3.addConstraint(Sketcher.Constraint("Symmetric", 9, 3, 21, 3, -1, 1))
sketch3.addConstraint(Sketcher.Constraint("Symmetric", 7, 3, 13, 3, -2))
sketch3.addConstraint(Sketcher.Constraint("Radius", 1, 11.0))
sketch3.addConstraint(Sketcher.Constraint("Radius", 3, 4.0))
sketch3.addConstraint(Sketcher.Constraint("Radius", 25, 2.0))
sketch3.addConstraint(Sketcher.Constraint("DistanceX", 10, 1, 10, 2, 134.0))
sketch3.addConstraint(Sketcher.Constraint("DistanceY", 0, 2, 0, 1, 16.0))
sketch3.addConstraint(Sketcher.Constraint("DistanceY", 4, 2, 4, 1, 64.0))
sketch3.addConstraint(Sketcher.Constraint("DistanceX", 2, 2, 2, 1, 1.5))
pad2 = body.newObject("PartDesign::Pad", "Pad001")
pad2.Profile = sketch3
pad2.Length = 2

sketch4 = body.newObject("Sketcher::SketchObject", "Sketch003")
sketch4.AttachmentSupport = (doc.getObject("XY_Plane"), [""])
sketch4.MapMode = "FlatFace"
sketch4.AttachmentOffset = App.Placement(App.Vector(0, 0, 42.5), App.Rotation())
sketch4.addGeometry(Part.Circle(App.Vector(-80, 45, 0), App.Vector(0, 0, 1), 3.2), False)
sketch4.addGeometry(Part.Circle(App.Vector(-80, -45, 0), App.Vector(0, 0, 1), 3.2), False)
sketch4.addGeometry(Part.Circle(App.Vector(80, -45, 0), App.Vector(0, 0, 1), 3.2), False)
sketch4.addGeometry(Part.Circle(App.Vector(80, 45, 0), App.Vector(0, 0, 1), 3.2), False)
sketch4.addConstraint(Sketcher.Constraint("Equal", 0, 1))
sketch4.addConstraint(Sketcher.Constraint("Equal", 1, 2))
sketch4.addConstraint(Sketcher.Constraint("Equal", 2, 3))
sketch4.addConstraint(Sketcher.Constraint("Symmetric", 0, 3, 2, 3, -1, 1))
sketch4.addConstraint(Sketcher.Constraint("Symmetric", 1, 3, 3, 3, -1, 1))
sketch4.addConstraint(Sketcher.Constraint("Symmetric", 1, 3, 2, 3, -2))
sketch4.addConstraint(Sketcher.Constraint("Diameter", 0, 6.5))
sketch4.addConstraint(Sketcher.Constraint("DistanceX", 0, 3, -1, 1, 80.0))
sketch4.addConstraint(Sketcher.Constraint("DistanceY", -1, 1, 0, 3, 45.0))
doc.recompute()
hole = body.newObject("PartDesign::Hole", "Hole")
hole.Profile = sketch4
hole.ThreadType = "None"
hole.Diameter = 6.5
hole.DepthType = "ThroughAll"

sketch5 = body.newObject("Sketcher::SketchObject", "Sketch004")
sketch5.AttachmentSupport = (doc.getObject("XY_Plane"), [""])
sketch5.MapMode = "FlatFace"
sketch5.AttachmentOffset = App.Placement(App.Vector(0, 0, 42.5), App.Rotation())
sketch5.addGeometry(Part.Circle(App.Vector(-80, 60, 0), App.Vector(0, 0, 1), 2.1), False)
sketch5.addGeometry(Part.Circle(App.Vector(-80, -60, 0), App.Vector(0, 0, 1), 2.1), False)
sketch5.addGeometry(Part.Circle(App.Vector(80, -60, 0), App.Vector(0, 0, 1), 2.1), False)
sketch5.addGeometry(Part.Circle(App.Vector(80, 60, 0), App.Vector(0, 0, 1), 2.1), False)
sketch5.addConstraint(Sketcher.Constraint("Equal", 0, 1))
sketch5.addConstraint(Sketcher.Constraint("Equal", 1, 2))
sketch5.addConstraint(Sketcher.Constraint("Equal", 2, 3))
sketch5.addConstraint(Sketcher.Constraint("Symmetric", 0, 3, 2, 3, -1, 1))
sketch5.addConstraint(Sketcher.Constraint("Symmetric", 1, 3, 3, 3, -1, 1))
sketch5.addConstraint(Sketcher.Constraint("Symmetric", 1, 3, 2, 3, -2))
sketch5.addConstraint(Sketcher.Constraint("Diameter", 0, 4.2))
sketch5.addConstraint(Sketcher.Constraint("DistanceX", 0, 3, -1, 1, 80.0))
sketch5.addConstraint(Sketcher.Constraint("DistanceY", -1, 1, 0, 3, 60.0))
doc.recompute()
hole2 = body.newObject("PartDesign::Hole", "Hole001")
hole2.Profile = sketch5
hole2.ThreadType = "None"
hole2.Diameter = 4.2
hole2.DepthType = "Dimension"
hole2.Depth = 14
hole2.DrillPoint = "Angled"
hole2.DrillPointAngle = 118
hole2.HoleCutType = "Counterbore"
hole2.HoleCutDiameter = 5
hole2.HoleCutDepth = 10

sketch6 = body.newObject("Sketcher::SketchObject", "Sketch005")
sketch6.AttachmentSupport = (doc.getObject("XY_Plane"), [""])
sketch6.MapMode = "FlatFace"
sketch6.AttachmentOffset = App.Placement(App.Vector(0, 0, 6.5), App.Rotation())
sketch6.addGeometry(Part.LineSegment(App.Vector(-69, -47, 0), App.Vector(-69, 47, 0)), False)
sketch6.addGeometry(Part.ArcOfCircle(Part.Circle(App.Vector(-82, 47, 0), App.Vector(0, 0, 1), 13), math.radians(-90), math.radians(0)), False)
sketch6.addGeometry(Part.LineSegment(App.Vector(-82, 34, 0), App.Vector(-83.5, 34, 0)), False)
sketch6.addGeometry(Part.ArcOfCircle(Part.Circle(App.Vector(-83.5, 32, 0), App.Vector(0, 0, 1), 2), math.radians(90), math.radians(180)), False)
sketch6.addGeometry(Part.LineSegment(App.Vector(-85.5, 32, 0), App.Vector(-85.5, -32, 0)), False)
sketch6.addGeometry(Part.ArcOfCircle(Part.Circle(App.Vector(-83.5, -32, 0), App.Vector(0, 0, 1), 2), math.radians(-180), math.radians(-90)), False)
sketch6.addGeometry(Part.LineSegment(App.Vector(-83.5, -34, 0), App.Vector(-82, -34, 0)), False)
sketch6.addGeometry(Part.ArcOfCircle(Part.Circle(App.Vector(-82, -47, 0), App.Vector(0, 0, 1), 13), math.radians(0), math.radians(90)), False)
sketch6.addGeometry(Part.LineSegment(App.Vector(69, 47, 0), App.Vector(69, -47, 0)), False)
sketch6.addGeometry(Part.ArcOfCircle(Part.Circle(App.Vector(82, -47, 0), App.Vector(0, 0, 1), 13), math.radians(90), math.radians(180)), False)
sketch6.addGeometry(Part.LineSegment(App.Vector(82, -34, 0), App.Vector(83.5, -34, 0)), False)
sketch6.addGeometry(Part.ArcOfCircle(Part.Circle(App.Vector(83.5, -32, 0), App.Vector(0, 0, 1), 2), math.radians(-90), math.radians(0)), False)
sketch6.addGeometry(Part.LineSegment(App.Vector(85.5, -32, 0), App.Vector(85.5, 32, 0)), False)
sketch6.addGeometry(Part.ArcOfCircle(Part.Circle(App.Vector(83.5, 32, 0), App.Vector(0, 0, 1), 2), math.radians(0), math.radians(90)), False)
sketch6.addGeometry(Part.LineSegment(App.Vector(83.5, 34, 0), App.Vector(82, 34, 0)), False)
sketch6.addGeometry(Part.ArcOfCircle(Part.Circle(App.Vector(82, 47, 0), App.Vector(0, 0, 1), 13), math.radians(-180), math.radians(-90)), False)
sketch6.addConstraint(Sketcher.Constraint("Tangent", 0, 2, 1, 2))
sketch6.addConstraint(Sketcher.Constraint("Tangent", 1, 1, 2, 1))
sketch6.addConstraint(Sketcher.Constraint("Tangent", 2, 2, 3, 1))
sketch6.addConstraint(Sketcher.Constraint("Tangent", 3, 2, 4, 1))
sketch6.addConstraint(Sketcher.Constraint("Tangent", 4, 2, 5, 1))
sketch6.addConstraint(Sketcher.Constraint("Tangent", 5, 2, 6, 1))
sketch6.addConstraint(Sketcher.Constraint("Tangent", 6, 2, 7, 2))
sketch6.addConstraint(Sketcher.Constraint("Tangent", 7, 1, 0, 1))
sketch6.addConstraint(Sketcher.Constraint("Tangent", 8, 2, 9, 2))
sketch6.addConstraint(Sketcher.Constraint("Tangent", 9, 1, 10, 1))
sketch6.addConstraint(Sketcher.Constraint("Tangent", 10, 2, 11, 1))
sketch6.addConstraint(Sketcher.Constraint("Tangent", 11, 2, 12, 1))
sketch6.addConstraint(Sketcher.Constraint("Tangent", 12, 2, 13, 1))
sketch6.addConstraint(Sketcher.Constraint("Tangent", 13, 2, 14, 1))
sketch6.addConstraint(Sketcher.Constraint("Tangent", 14, 2, 15, 2))
sketch6.addConstraint(Sketcher.Constraint("Tangent", 15, 1, 8, 1))
sketch6.addConstraint(Sketcher.Constraint("Vertical", 0))
sketch6.addConstraint(Sketcher.Constraint("Horizontal", 2))
sketch6.addConstraint(Sketcher.Constraint("Vertical", 4))
sketch6.addConstraint(Sketcher.Constraint("Horizontal", 6))
sketch6.addConstraint(Sketcher.Constraint("Vertical", 8))
sketch6.addConstraint(Sketcher.Constraint("Horizontal", 10))
sketch6.addConstraint(Sketcher.Constraint("Vertical", 12))
sketch6.addConstraint(Sketcher.Constraint("Horizontal", 14))
sketch6.addConstraint(Sketcher.Constraint("Equal", 3, 5))
sketch6.addConstraint(Sketcher.Constraint("Equal", 1, 7))
sketch6.addConstraint(Sketcher.Constraint("Equal", 7, 9))
sketch6.addConstraint(Sketcher.Constraint("Equal", 5, 11))
sketch6.addConstraint(Sketcher.Constraint("Equal", 11, 13))
sketch6.addConstraint(Sketcher.Constraint("Equal", 9, 15))
sketch6.addConstraint(Sketcher.Constraint("Symmetric", 1, 3, 9, 3, -1, 1))
sketch6.addConstraint(Sketcher.Constraint("Symmetric", 5, 3, 13, 3, -1, 1))
sketch6.addConstraint(Sketcher.Constraint("Horizontal", 7, 3, 9, 3))
sketch6.addConstraint(Sketcher.Constraint("Radius", 1, 13.0))
sketch6.addConstraint(Sketcher.Constraint("Radius", 3, 2.0))
sketch6.addConstraint(Sketcher.Constraint("DistanceY", 0, 1, 0, 2, 94.0))
sketch6.addConstraint(Sketcher.Constraint("DistanceX", 2, 2, 2, 1, 1.5))
sketch6.addConstraint(Sketcher.Constraint("DistanceX", 1, 3, -1, 1, 82.0))
pad3 = body.newObject("PartDesign::Pad", "Pad002")
pad3.Profile = sketch6
pad3.Length = 5

sketch7 = body.newObject("Sketcher::SketchObject", "Sketch006")
sketch7.AttachmentSupport = (doc.getObject("XY_Plane"), [""])
sketch7.MapMode = "FlatFace"
sketch7.AttachmentOffset = App.Placement(App.Vector(0, 0, 42.5), App.Rotation())
sketch7.addGeometry(Part.Circle(App.Vector(-80, 45, 0), App.Vector(0, 0, 1), 6), False)
sketch7.addGeometry(Part.Circle(App.Vector(-80, -45, 0), App.Vector(0, 0, 1), 6), False)
sketch7.addGeometry(Part.Circle(App.Vector(80, -45, 0), App.Vector(0, 0, 1), 6), False)
sketch7.addGeometry(Part.Circle(App.Vector(80, 45, 0), App.Vector(0, 0, 1), 6), False)
sketch7.addConstraint(Sketcher.Constraint("Equal", 0, 1))
sketch7.addConstraint(Sketcher.Constraint("Equal", 1, 2))
sketch7.addConstraint(Sketcher.Constraint("Equal", 2, 3))
sketch7.addConstraint(Sketcher.Constraint("Symmetric", 0, 3, 2, 3, -1, 1))
sketch7.addConstraint(Sketcher.Constraint("Symmetric", 1, 3, 3, 3, -1, 1))
sketch7.addConstraint(Sketcher.Constraint("Symmetric", 1, 3, 2, 3, -2))
sketch7.addConstraint(Sketcher.Constraint("Diameter", 0, 12.0))
sketch7.addConstraint(Sketcher.Constraint("DistanceX", 0, 3, -1, 1, 80.0))
sketch7.addConstraint(Sketcher.Constraint("DistanceY", -1, 1, 0, 3, 45.0))
pocket2 = body.newObject("PartDesign::Pocket", "Pocket001")
pocket2.Profile = sketch7
pocket2.Length = 32.5

doc.recompute()
